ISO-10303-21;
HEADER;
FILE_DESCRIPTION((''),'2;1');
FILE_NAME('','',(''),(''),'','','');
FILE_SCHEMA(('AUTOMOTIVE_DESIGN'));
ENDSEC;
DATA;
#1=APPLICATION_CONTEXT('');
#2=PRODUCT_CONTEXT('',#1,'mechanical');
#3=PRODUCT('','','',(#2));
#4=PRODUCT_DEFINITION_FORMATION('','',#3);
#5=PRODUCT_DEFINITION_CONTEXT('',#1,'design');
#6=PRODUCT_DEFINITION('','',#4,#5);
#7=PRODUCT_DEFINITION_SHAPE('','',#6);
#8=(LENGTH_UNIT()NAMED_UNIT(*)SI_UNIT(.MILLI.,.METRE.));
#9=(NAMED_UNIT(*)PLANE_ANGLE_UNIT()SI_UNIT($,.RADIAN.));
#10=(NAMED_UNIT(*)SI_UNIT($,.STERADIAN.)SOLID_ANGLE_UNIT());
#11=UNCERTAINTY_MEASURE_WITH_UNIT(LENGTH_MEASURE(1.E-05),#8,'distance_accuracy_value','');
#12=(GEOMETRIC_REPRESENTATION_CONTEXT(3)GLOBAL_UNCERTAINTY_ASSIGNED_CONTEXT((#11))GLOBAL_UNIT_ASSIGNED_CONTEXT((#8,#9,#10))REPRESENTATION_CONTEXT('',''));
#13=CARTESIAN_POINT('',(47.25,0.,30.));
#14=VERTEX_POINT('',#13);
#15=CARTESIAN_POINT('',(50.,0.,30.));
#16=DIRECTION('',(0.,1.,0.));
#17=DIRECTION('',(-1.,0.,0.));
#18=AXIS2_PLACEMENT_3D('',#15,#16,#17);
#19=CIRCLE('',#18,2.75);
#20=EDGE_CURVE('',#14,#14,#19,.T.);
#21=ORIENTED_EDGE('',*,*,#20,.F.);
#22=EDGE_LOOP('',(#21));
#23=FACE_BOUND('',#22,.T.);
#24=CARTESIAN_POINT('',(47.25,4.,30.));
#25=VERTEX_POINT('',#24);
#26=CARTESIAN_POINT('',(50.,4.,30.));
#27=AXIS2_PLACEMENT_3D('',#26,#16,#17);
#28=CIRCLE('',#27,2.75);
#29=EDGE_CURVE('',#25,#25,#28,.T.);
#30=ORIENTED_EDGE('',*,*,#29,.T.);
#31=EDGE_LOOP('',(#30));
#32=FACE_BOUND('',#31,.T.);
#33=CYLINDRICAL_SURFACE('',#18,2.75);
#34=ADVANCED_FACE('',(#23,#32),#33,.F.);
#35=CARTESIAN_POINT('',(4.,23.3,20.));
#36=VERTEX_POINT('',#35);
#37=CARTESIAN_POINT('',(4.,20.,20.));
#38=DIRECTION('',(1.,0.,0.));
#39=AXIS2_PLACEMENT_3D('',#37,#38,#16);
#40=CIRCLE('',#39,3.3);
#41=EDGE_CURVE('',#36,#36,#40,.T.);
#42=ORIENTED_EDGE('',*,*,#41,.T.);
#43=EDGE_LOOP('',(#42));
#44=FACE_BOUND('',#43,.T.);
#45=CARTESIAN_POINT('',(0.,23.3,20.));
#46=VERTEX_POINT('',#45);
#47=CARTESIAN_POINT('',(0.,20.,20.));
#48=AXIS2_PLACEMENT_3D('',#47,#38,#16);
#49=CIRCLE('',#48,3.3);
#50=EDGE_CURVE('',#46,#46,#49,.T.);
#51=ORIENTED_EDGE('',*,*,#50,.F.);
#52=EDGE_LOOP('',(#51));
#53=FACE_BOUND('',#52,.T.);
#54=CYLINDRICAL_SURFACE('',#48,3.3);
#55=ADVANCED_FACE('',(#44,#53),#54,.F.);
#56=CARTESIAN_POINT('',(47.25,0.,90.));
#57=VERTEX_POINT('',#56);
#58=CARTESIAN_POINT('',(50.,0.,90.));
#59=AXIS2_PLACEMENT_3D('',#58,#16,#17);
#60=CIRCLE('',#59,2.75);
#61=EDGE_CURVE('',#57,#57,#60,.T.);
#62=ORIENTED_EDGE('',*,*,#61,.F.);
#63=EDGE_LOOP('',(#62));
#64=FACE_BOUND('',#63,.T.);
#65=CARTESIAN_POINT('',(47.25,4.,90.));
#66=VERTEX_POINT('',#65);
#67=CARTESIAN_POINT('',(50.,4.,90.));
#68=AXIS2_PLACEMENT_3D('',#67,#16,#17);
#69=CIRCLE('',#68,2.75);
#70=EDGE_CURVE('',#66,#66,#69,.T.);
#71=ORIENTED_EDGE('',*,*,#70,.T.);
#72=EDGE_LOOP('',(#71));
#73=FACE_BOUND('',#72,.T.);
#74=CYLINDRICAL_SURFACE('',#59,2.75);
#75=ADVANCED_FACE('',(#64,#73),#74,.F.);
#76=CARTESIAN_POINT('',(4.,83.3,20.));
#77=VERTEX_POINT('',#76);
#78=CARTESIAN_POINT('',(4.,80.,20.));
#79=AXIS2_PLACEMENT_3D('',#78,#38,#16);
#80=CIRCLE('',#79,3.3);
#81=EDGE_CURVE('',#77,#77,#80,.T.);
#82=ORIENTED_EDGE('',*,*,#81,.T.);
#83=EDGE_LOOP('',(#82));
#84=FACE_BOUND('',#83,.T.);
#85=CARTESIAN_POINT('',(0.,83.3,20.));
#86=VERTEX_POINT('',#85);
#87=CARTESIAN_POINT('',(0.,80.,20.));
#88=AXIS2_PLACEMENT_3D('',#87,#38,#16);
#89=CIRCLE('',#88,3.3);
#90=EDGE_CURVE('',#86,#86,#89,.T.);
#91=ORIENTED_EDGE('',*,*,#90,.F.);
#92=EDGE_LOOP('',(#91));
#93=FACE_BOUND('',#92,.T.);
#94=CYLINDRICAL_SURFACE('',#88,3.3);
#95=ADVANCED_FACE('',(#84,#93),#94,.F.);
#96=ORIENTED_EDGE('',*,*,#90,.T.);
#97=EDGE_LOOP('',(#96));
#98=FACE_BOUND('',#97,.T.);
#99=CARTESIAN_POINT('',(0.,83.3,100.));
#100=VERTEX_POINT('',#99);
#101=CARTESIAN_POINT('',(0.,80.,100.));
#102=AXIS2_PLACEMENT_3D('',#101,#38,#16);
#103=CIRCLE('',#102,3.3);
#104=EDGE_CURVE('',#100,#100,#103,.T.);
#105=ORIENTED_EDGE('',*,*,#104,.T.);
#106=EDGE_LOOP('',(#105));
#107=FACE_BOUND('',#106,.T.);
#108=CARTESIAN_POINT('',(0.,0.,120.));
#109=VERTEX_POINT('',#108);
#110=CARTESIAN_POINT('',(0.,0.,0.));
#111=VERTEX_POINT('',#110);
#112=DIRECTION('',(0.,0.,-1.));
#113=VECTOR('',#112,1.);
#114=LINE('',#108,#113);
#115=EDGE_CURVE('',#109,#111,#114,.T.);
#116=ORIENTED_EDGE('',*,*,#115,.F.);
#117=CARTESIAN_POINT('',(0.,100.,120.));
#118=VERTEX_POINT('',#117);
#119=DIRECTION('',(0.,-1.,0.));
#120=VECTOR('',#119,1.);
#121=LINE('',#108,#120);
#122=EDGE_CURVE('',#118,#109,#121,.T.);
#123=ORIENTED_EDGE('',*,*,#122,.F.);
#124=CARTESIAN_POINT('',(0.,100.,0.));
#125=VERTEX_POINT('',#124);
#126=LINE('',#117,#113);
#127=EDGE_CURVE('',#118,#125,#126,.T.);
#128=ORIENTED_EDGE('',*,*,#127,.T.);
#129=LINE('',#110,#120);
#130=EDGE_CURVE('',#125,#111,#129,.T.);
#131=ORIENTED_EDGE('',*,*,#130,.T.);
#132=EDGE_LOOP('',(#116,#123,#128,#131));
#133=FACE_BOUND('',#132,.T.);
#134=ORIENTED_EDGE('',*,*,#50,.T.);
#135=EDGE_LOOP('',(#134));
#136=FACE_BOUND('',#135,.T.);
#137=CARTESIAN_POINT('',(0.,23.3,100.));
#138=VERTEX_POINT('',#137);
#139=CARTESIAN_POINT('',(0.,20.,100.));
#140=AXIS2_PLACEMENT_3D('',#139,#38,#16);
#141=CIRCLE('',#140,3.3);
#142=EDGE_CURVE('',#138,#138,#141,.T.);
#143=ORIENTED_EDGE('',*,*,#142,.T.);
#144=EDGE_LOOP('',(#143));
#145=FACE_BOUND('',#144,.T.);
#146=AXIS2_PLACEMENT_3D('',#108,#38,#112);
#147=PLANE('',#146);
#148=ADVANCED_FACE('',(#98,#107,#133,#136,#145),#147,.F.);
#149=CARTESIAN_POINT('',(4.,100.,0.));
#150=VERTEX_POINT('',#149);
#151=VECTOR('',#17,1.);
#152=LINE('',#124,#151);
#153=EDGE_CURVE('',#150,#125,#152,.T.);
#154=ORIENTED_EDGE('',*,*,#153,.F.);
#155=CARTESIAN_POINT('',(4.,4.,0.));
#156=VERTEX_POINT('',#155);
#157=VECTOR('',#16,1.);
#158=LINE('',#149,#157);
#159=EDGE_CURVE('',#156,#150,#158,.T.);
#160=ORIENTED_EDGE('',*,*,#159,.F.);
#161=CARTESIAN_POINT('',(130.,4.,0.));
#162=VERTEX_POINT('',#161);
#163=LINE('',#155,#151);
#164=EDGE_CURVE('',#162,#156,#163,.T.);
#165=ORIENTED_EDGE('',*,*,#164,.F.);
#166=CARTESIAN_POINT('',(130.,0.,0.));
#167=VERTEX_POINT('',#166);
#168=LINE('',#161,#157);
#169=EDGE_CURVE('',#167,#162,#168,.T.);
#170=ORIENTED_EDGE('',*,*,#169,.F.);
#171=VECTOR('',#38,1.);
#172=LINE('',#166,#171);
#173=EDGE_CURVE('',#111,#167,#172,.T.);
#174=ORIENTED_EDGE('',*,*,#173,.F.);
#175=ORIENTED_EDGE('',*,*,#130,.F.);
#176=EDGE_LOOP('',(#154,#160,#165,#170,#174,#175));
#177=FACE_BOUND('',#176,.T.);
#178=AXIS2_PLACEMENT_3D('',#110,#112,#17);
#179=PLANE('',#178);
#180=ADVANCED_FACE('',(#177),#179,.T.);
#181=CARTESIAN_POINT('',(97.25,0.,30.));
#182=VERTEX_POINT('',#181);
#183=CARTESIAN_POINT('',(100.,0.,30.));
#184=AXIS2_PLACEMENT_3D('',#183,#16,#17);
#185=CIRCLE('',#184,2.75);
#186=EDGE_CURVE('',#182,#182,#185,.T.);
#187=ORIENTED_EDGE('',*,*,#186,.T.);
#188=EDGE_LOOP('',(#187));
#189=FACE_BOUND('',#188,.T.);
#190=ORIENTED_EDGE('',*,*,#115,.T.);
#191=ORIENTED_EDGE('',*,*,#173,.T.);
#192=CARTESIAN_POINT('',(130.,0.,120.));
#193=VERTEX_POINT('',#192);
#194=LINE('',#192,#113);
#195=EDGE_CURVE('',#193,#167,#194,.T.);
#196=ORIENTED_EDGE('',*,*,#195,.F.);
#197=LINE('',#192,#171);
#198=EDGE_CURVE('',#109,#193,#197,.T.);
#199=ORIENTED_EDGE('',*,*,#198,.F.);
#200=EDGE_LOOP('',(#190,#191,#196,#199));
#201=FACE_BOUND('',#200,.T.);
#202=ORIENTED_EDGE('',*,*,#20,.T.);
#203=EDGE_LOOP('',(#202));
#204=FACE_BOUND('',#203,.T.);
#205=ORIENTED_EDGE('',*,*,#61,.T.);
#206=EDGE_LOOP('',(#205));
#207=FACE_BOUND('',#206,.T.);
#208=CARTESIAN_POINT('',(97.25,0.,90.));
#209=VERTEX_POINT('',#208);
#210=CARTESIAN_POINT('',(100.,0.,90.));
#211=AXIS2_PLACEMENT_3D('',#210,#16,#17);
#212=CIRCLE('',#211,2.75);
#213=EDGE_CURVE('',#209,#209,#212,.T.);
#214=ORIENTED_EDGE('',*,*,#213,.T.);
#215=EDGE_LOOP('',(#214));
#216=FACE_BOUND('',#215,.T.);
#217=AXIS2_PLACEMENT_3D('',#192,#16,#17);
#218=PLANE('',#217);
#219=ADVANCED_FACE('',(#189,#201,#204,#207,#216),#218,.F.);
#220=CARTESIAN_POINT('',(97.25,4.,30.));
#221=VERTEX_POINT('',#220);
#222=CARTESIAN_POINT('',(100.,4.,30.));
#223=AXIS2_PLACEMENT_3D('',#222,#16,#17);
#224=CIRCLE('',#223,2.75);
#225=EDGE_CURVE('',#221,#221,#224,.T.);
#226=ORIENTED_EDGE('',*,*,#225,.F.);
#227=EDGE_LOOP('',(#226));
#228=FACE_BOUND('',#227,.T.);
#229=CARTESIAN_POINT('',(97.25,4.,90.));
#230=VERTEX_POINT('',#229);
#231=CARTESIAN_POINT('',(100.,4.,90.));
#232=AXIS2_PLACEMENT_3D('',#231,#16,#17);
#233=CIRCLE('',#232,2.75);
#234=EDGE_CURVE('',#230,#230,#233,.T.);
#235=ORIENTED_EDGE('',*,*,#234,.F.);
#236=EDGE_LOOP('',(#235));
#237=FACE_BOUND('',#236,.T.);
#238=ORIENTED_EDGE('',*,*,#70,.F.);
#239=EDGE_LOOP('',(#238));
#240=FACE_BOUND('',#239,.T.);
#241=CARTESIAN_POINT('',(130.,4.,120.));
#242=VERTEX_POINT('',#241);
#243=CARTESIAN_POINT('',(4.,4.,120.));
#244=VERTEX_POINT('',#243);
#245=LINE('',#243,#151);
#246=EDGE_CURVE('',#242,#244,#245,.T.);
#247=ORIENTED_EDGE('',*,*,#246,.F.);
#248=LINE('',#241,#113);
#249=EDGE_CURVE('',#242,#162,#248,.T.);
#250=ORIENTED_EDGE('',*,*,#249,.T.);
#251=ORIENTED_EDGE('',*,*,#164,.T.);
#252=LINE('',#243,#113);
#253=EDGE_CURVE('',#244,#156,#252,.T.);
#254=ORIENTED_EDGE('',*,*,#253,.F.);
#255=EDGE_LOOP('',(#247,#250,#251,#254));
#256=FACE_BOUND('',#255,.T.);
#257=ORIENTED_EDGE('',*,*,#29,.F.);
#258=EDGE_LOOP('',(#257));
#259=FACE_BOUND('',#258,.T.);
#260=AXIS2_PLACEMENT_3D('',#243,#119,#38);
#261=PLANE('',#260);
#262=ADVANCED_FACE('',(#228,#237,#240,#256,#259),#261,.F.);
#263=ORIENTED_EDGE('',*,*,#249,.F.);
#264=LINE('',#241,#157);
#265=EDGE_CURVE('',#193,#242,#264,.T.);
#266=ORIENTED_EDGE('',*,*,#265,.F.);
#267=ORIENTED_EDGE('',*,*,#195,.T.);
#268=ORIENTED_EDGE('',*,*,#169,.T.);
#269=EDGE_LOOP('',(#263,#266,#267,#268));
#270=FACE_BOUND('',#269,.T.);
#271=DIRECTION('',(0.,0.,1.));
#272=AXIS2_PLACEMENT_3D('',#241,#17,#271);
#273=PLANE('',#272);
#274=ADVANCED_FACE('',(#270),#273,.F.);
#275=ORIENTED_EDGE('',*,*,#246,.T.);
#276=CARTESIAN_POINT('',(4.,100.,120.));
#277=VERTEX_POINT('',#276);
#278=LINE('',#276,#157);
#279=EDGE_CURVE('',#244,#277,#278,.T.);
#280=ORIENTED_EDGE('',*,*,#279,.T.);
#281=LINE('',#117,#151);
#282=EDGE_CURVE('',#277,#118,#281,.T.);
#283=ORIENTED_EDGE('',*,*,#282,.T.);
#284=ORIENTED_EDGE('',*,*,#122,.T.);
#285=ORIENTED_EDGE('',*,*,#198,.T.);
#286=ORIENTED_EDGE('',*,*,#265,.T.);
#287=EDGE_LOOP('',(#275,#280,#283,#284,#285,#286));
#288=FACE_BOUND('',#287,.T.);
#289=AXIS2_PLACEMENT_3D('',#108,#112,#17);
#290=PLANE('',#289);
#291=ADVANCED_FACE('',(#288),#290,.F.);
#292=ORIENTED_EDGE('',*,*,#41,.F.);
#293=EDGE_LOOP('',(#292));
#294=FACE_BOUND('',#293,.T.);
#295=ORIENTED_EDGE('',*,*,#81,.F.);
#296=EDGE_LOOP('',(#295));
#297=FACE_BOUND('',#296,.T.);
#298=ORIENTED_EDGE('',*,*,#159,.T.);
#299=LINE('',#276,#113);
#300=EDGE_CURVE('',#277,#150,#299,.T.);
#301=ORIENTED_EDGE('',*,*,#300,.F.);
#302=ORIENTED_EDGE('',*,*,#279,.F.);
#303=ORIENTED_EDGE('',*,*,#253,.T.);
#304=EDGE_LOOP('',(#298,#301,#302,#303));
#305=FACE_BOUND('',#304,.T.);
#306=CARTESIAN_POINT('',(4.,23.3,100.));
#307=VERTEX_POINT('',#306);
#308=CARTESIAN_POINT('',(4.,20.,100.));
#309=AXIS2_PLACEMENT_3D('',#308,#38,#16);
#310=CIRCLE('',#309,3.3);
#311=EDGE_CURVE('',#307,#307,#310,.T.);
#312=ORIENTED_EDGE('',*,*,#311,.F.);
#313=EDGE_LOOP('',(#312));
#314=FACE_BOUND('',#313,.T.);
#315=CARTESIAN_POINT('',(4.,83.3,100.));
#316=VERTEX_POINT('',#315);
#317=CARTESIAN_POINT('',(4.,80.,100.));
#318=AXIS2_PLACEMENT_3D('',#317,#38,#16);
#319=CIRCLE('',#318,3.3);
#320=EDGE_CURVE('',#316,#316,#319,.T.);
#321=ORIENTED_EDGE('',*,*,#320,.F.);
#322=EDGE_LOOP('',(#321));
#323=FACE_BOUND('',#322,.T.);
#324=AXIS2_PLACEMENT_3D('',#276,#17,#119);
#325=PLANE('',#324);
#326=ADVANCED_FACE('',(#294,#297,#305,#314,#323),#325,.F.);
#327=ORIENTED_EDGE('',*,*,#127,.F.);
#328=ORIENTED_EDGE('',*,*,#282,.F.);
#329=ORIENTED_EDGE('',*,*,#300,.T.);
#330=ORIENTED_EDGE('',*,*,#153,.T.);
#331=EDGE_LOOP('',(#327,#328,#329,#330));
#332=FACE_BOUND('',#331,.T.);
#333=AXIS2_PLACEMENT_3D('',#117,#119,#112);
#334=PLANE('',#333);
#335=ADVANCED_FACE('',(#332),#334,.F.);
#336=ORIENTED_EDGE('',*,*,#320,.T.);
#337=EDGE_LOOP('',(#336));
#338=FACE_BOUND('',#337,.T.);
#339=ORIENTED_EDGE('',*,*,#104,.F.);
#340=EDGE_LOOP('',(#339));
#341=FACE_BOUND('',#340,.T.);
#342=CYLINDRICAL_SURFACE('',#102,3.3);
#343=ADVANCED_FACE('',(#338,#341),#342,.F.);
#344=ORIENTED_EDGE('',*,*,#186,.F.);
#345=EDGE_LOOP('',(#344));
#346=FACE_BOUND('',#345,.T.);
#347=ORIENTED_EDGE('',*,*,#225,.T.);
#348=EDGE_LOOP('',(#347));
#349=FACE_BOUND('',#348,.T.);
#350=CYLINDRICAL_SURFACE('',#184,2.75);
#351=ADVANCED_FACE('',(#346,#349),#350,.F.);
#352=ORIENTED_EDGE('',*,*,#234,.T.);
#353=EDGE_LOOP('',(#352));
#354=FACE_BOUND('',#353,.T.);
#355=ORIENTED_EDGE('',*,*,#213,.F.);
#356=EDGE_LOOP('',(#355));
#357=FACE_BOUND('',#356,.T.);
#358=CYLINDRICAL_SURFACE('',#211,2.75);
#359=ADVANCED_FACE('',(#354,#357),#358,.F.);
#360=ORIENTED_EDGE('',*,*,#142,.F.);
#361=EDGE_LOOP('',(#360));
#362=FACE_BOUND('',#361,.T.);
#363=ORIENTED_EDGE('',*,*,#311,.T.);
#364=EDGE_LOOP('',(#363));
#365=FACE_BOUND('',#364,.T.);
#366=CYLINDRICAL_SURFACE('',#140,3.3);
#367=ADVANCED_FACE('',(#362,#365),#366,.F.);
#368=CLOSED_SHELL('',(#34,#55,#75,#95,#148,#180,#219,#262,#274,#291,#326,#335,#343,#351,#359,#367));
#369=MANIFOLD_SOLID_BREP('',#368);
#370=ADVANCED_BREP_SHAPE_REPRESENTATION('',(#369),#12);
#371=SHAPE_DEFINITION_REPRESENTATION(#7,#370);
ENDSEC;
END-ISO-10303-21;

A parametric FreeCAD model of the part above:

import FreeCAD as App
import Part
import Sketcher

V = App.Vector


def add_polygon(sketch, points):
    """Adds a closed chain of lines whose ends are joined by coincident constraints."""
    first, n = sketch.GeometryCount, len(points)
    for a, b in zip(points, points[1:] + points[:1]):
        sketch.addGeometry(Part.LineSegment(App.Vector(*a, 0), App.Vector(*b, 0)), False)
    for i in range(n):
        sketch.addConstraint(Sketcher.Constraint("Coincident", first + i, 2, first + (i + 1) % n, 1))

doc = App.newDocument("Part")
body = doc.addObject("PartDesign::Body", "Body")

# Sketch on XY plane
sketch1 = body.newObject("Sketcher::SketchObject", "Sketch")
sketch1.AttachmentSupport = (doc.getObject("XY_Plane"), [""])
sketch1.MapMode = "FlatFace"
add_polygon(sketch1, [(0, 100), (0, 0), (130, 0), (130, 4), (4, 4), (4, 100)])  # lines 0-5
sketch1.addConstraint([
    Sketcher.Constraint("Vertical", 0),
    Sketcher.Constraint("Horizontal", 1),
    Sketcher.Constraint("Vertical", 2),
    Sketcher.Constraint("Horizontal", 3),
    Sketcher.Constraint("Vertical", 4),
    Sketcher.Constraint("Horizontal", 5),
    Sketcher.Constraint("Coincident", 0, 2, -1, 1),
    Sketcher.Constraint("Equal", 5, 2),
    Sketcher.Constraint("DistanceX", 1, 1, 1, 2, 130.0),
    Sketcher.Constraint("DistanceX", 3, 2, 3, 1, 126.0),
    Sketcher.Constraint("DistanceY", 0, 2, 0, 1, 100.0),
])
pad1 = body.newObject("PartDesign::Pad", "Pad")
pad1.Profile = sketch1
pad1.Length = 120

# Sketch on YZ plane
sketch2 = body.newObject("Sketcher::SketchObject", "Sketch001")
sketch2.AttachmentSupport = (doc.getObject("YZ_Plane"), [""])
sketch2.MapMode = "FlatFace"
sketch2.AttachmentOffset = App.Placement(V(0, 0, 4), App.Rotation())
sketch2.addGeometry([
    Part.Circle(V(80, 100, 0), V(0, 0, 1), 3.3),
    Part.Circle(V(80, 20, 0), V(0, 0, 1), 3.3),
    Part.Circle(V(20, 20, 0), V(0, 0, 1), 3.3),
    Part.Circle(V(20, 100, 0), V(0, 0, 1), 3.3),
], False)
sketch2.addConstraint([
    Sketcher.Constraint("Equal", 0, 1),
    Sketcher.Constraint("Equal", 1, 2),
    Sketcher.Constraint("Equal", 2, 3),
    Sketcher.Constraint("Horizontal", 1, 3, 2, 3),
    Sketcher.Constraint("Horizontal", 0, 3, 3, 3),
    Sketcher.Constraint("Vertical", 0, 3, 1, 3),
    Sketcher.Constraint("Vertical", 2, 3, 3, 3),
    Sketcher.Constraint("Diameter", 0, 6.6),
    Sketcher.Constraint("DistanceX", -1, 1, 0, 3, 80.0),
    Sketcher.Constraint("DistanceY", -1, 1, 0, 3, 100.0),
    Sketcher.Constraint("DistanceY", -1, 1, 1, 3, 20.0),
    Sketcher.Constraint("DistanceX", -1, 1, 2, 3, 20.0),
])
pocket1 = body.newObject("PartDesign::Pocket", "Pocket")
pocket1.Profile = sketch2
pocket1.Type = "ThroughAll"

# Sketch on XZ plane
sketch3 = body.newObject("Sketcher::SketchObject", "Sketch002")
sketch3.AttachmentSupport = (doc.getObject("XZ_Plane"), [""])
sketch3.MapMode = "FlatFace"
sketch3.AttachmentOffset = App.Placement(V(0, 0, -4), App.Rotation())
sketch3.addGeometry([
    Part.Circle(V(100, 30, 0), V(0, 0, 1), 2.8),
    Part.Circle(V(50, 30, 0), V(0, 0, 1), 2.8),
    Part.Circle(V(50, 90, 0), V(0, 0, 1), 2.8),
    Part.Circle(V(100, 90, 0), V(0, 0, 1), 2.8),
], False)
sketch3.addConstraint([
    Sketcher.Constraint("Equal", 0, 1),
    Sketcher.Constraint("Equal", 1, 2),
    Sketcher.Constraint("Equal", 2, 3),
    Sketcher.Constraint("Horizontal", 0, 3, 1, 3),
    Sketcher.Constraint("Horizontal", 2, 3, 3, 3),
    Sketcher.Constraint("Vertical", 1, 3, 2, 3),
    Sketcher.Constraint("Vertical", 0, 3, 3, 3),
    Sketcher.Constraint("Diameter", 0, 5.5),
    Sketcher.Constraint("DistanceX", -1, 1, 0, 3, 100.0),
    Sketcher.Constraint("DistanceY", -1, 1, 0, 3, 30.0),
    Sketcher.Constraint("DistanceX", -1, 1, 1, 3, 50.0),
    Sketcher.Constraint("DistanceY", -1, 1, 2, 3, 90.0),
])
pocket2 = body.newObject("PartDesign::Pocket", "Pocket001")
pocket2.Profile = sketch3
pocket2.Type = "ThroughAll"
pocket2.Reversed = True

doc.recompute()
